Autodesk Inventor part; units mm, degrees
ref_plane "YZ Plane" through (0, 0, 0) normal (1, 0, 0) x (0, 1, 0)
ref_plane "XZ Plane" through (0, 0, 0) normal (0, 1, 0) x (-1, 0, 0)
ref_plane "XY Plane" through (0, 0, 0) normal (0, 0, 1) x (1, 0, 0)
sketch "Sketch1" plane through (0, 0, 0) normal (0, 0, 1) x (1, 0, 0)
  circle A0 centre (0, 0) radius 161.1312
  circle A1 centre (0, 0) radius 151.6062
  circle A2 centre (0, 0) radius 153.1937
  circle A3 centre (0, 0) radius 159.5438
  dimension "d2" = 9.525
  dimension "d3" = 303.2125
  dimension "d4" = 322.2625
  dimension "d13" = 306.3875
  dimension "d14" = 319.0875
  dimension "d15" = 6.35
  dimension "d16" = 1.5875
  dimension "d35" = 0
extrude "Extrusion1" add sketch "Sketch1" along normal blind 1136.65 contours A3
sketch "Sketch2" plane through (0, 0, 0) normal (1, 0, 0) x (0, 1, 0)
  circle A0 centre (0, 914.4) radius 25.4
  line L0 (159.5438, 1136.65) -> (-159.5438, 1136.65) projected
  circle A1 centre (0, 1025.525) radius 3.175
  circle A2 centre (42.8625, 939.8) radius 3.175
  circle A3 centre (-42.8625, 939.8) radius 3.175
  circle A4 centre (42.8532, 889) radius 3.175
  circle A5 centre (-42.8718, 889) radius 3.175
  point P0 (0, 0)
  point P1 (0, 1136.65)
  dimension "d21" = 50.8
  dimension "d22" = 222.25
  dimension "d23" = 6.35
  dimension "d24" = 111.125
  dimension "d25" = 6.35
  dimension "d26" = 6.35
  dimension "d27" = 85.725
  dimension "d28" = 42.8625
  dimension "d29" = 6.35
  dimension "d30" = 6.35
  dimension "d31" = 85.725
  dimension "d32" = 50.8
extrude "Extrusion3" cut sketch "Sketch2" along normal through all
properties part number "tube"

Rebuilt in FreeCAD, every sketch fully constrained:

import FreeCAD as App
import Part
import Sketcher
Q = App.Units.Quantity

doc = App.newDocument("Part")
params = doc.addObject("Spreadsheet::Sheet", "Params")
for row, (alias, value) in enumerate([
    ("sketch1_diameter", "12.5625 in"),
    ("sketch1_diameter2", "12.0625 in"),
    ("pad1_length", "44.75 in"),
    ("sketch2_diameter", "2 in"),
    ("sketch2_diameter2", "0.25 in"),
], start=1):
    params.set(f"A{row}", alias)
    params.set(f"B{row}", "=" + value)
    params.setAlias(f"B{row}", alias)

body = doc.addObject("PartDesign::Body", "Body")

sketch1 = body.newObject("Sketcher::SketchObject", "Sketch")
sketch1.AttachmentSupport = (doc.getObject("XY_Plane"), [""])
sketch1.MapMode = "FlatFace"
sketch1.addGeometry(Part.Circle(App.Vector(0, 0, 0), App.Vector(0, 0, 1), 160), False)
sketch1.addGeometry(Part.Circle(App.Vector(0, 0, 0), App.Vector(0, 0, 1), 153), False)
sketch1.addConstraint(Sketcher.Constraint("Coincident", 0, 3, -1, 1))
sketch1.addConstraint(Sketcher.Constraint("Coincident", 1, 3, -1, 1))
sketch1.addConstraint(Sketcher.Constraint("Diameter", 0, Q("12.5625 in")))
sketch1.addConstraint(Sketcher.Constraint("Diameter", 1, Q("12.0625 in")))
sketch1.setExpression("Constraints[2]", "Params.sketch1_diameter")
sketch1.setExpression("Constraints[3]", "Params.sketch1_diameter2")
pad1 = body.newObject("PartDesign::Pad", "Pad")
pad1.Profile = sketch1
pad1.setExpression("Length", "Params.pad1_length")

sketch2 = body.newObject("Sketcher::SketchObject", "Sketch001")
sketch2.AttachmentSupport = (doc.getObject("YZ_Plane"), [""])
sketch2.MapMode = "FlatFace"
sketch2.addGeometry(Part.Circle(App.Vector(0, 914.4, 0), App.Vector(0, 0, 1), 25.4), False)
sketch2.addGeometry(Part.Circle(App.Vector(0, 1025.5, 0), App.Vector(0, 0, 1), 3.2), False)
sketch2.addGeometry(Part.Circle(App.Vector(42.9, 939.8, 0), App.Vector(0, 0, 1), 3.2), False)
sketch2.addGeometry(Part.Circle(App.Vector(-42.9, 939.8, 0), App.Vector(0, 0, 1), 3.2), False)
sketch2.addGeometry(Part.Circle(App.Vector(42.9, 889, 0), App.Vector(0, 0, 1), 3.2), False)
sketch2.addGeometry(Part.Circle(App.Vector(-42.9, 889, 0), App.Vector(0, 0, 1), 3.2), False)
sketch2.addConstraint(Sketcher.Constraint("Equal", 1, 2))
sketch2.addConstraint(Sketcher.Constraint("Equal", 2, 3))
sketch2.addConstraint(Sketcher.Constraint("Equal", 3, 4))
sketch2.addConstraint(Sketcher.Constraint("Equal", 4, 5))
sketch2.addConstraint(Sketcher.Constraint("Symmetric", 2, 3, 3, 3, -2))
sketch2.addConstraint(Sketcher.Constraint("PointOnObject", 0, 3, -2))
sketch2.addConstraint(Sketcher.Constraint("PointOnObject", 1, 3, -2))
sketch2.addConstraint(Sketcher.Constraint("Horizontal", 4, 3, 5, 3))
sketch2.addConstraint(Sketcher.Constraint("Diameter", 0, Q("2 in")))
sketch2.addConstraint(Sketcher.Constraint("Diameter", 1, Q("0.25 in")))
sketch2.addConstraint(Sketcher.Constraint("DistanceY", 4, 3, 2, 3, Q("2 in")))
sketch2.addConstraint(Sketcher.Constraint("DistanceY", -1, 1, 0, 3, Q("36 in")))
sketch2.addConstraint(Sketcher.Constraint("DistanceX", -1, 1, 2, 3, Q("1.6875 in")))
sketch2.addConstraint(Sketcher.Constraint("DistanceY", -1, 1, 2, 3, Q("37 in")))
sketch2.addConstraint(Sketcher.Constraint("DistanceY", 0, 3, 1, 3, Q("4.375 in")))
sketch2.addConstraint(Sketcher.Constraint("DistanceX", 5, 3, 4, 3, Q("3.375 in")))
sketch2.addConstraint(Sketcher.Constraint("DistanceX", -1, 1, 4, 3, Q("42.8532 mm")))
sketch2.setExpression("Constraints[8]", "Params.sketch2_diameter")
sketch2.setExpression("Constraints[9]", "Params.sketch2_diameter2")
pocket1 = body.newObject("PartDesign::Pocket", "Pocket")
pocket1.Profile = sketch2
pocket1.Type = "ThroughAll"
pocket1.Reversed = True

doc.recompute()
